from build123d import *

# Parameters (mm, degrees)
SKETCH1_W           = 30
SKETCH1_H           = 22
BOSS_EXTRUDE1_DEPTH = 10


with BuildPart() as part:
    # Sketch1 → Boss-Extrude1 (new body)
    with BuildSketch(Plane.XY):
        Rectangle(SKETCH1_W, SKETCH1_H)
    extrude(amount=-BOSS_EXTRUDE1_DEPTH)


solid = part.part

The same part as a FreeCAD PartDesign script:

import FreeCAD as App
import Part
import Sketcher

V = App.Vector
Q = App.Units.Quantity


def add_polygon(sketch, points):
    """Adds a closed chain of lines whose ends are joined by coincident constraints."""
    first, n = sketch.GeometryCount, len(points)
    for a, b in zip(points, points[1:] + points[:1]):
        sketch.addGeometry(Part.LineSegment(App.Vector(*a, 0), App.Vector(*b, 0)), False)
    for i in range(n):
        sketch.addConstraint(Sketcher.Constraint("Coincident", first + i, 2, first + (i + 1) % n, 1))

doc = App.newDocument("Part")
params = doc.addObject("Spreadsheet::Sheet", "Params")
for row, (alias, value) in enumerate([
    ("sketch1_width", "30 mm"),
    ("sketch1_height", "22 mm"),
    ("pad1_length", "10 mm"),
], start=1):
    params.set(f"A{row}", alias)
    params.set(f"B{row}", "=" + value)
    params.setAlias(f"B{row}", alias)

body = doc.addObject("PartDesign::Body", "Body")

# Sketch on XY plane
sketch1 = doc.addObject("Sketcher::SketchObject", "Sketch")
body.addObject(sketch1)
sketch1.AttachmentSupport = (doc.XY_Plane, [""])
sketch1.MapMode = "FlatFace"
add_polygon(sketch1, [(-15, 11), (-15, -11), (15, -11), (15, 11)])  # lines 0-3
sketch1.addConstraint([
    Sketcher.Constraint("Vertical", 0),
    Sketcher.Constraint("Horizontal", 1),
    Sketcher.Constraint("Vertical", 2),
    Sketcher.Constraint("Horizontal", 3),
    Sketcher.Constraint("Symmetric", 0, 2, 2, 2, -1, 1),
    Sketcher.Constraint("DistanceX", 1, 1, 1, 2, Q("30 mm")),
    Sketcher.Constraint("DistanceY", 0, 2, 0, 1, Q("22 mm")),
])
sketch1.setExpression("Constraints[9]", "Params.sketch1_width")
sketch1.setExpression("Constraints[10]", "Params.sketch1_height")
pad1 = doc.addObject("PartDesign::Pad", "Pad")
body.addObject(pad1)
pad1.Profile = sketch1
pad1.setExpression("Length", "Params.pad1_length")
pad1.Reversed = True

doc.recompute()
